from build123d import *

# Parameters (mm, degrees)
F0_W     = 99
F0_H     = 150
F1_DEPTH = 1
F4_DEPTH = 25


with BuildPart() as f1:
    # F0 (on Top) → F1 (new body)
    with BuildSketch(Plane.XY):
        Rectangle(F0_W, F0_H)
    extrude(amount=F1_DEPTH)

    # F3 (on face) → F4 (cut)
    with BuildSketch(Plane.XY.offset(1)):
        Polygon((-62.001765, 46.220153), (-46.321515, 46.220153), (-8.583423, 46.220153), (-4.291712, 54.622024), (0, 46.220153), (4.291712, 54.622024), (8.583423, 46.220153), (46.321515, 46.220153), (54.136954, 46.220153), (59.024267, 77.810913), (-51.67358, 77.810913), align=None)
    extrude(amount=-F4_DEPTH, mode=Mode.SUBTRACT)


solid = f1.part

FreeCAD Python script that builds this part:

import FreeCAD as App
import Part
import Sketcher


def add_polygon(sketch, points):
    """Adds a closed chain of lines whose ends are joined by coincident constraints."""
    first, n = sketch.GeometryCount, len(points)
    for a, b in zip(points, points[1:] + points[:1]):
        sketch.addGeometry(Part.LineSegment(App.Vector(*a, 0), App.Vector(*b, 0)), False)
    for i in range(n):
        sketch.addConstraint(Sketcher.Constraint("Coincident", first + i, 2, first + (i + 1) % n, 1))

doc = App.newDocument("Part")
body = doc.addObject("PartDesign::Body", "Body")

# Sketch on XY plane
sketch1 = body.newObject("Sketcher::SketchObject", "Sketch")
sketch1.AttachmentSupport = (doc.getObject("XY_Plane"), [""])
sketch1.MapMode = "FlatFace"
add_polygon(sketch1, [(-49.5, 75), (-49.5, -75), (49.5, -75), (49.5, 75)])  # lines 0-3
sketch1.addConstraint(Sketcher.Constraint("Vertical", 0))
sketch1.addConstraint(Sketcher.Constraint("Horizontal", 1))
sketch1.addConstraint(Sketcher.Constraint("Vertical", 2))
sketch1.addConstraint(Sketcher.Constraint("Horizontal", 3))
sketch1.addConstraint(Sketcher.Constraint("Symmetric", 0, 2, 2, 2, -1, 1))
sketch1.addConstraint(Sketcher.Constraint("DistanceX", 1, 1, 1, 2, 99.0))
sketch1.addConstraint(Sketcher.Constraint("DistanceY", 0, 2, 0, 1, 150.0))
pad1 = body.newObject("PartDesign::Pad", "Pad")
pad1.Profile = sketch1
pad1.Length = 1

# Sketch on XY plane
sketch2 = body.newObject("Sketcher::SketchObject", "Sketch001")
sketch2.AttachmentSupport = (doc.getObject("XY_Plane"), [""])
sketch2.MapMode = "FlatFace"
sketch2.AttachmentOffset = App.Placement(App.Vector(0, 0, 1), App.Rotation())
add_polygon(sketch2, [(-62.001765, 46.220153), (-8.583423, 46.220153), (-4.291712, 54.622024), (0, 46.220153), (4.291712, 54.622024), (8.583423, 46.220153), (54.136954, 46.220153), (59.024267, 77.810913), (-51.67358, 77.810913)])  # lines 0-8
sketch2.addConstraint(Sketcher.Constraint("Horizontal", 0))
sketch2.addConstraint(Sketcher.Constraint("Horizontal", 5))
sketch2.addConstraint(Sketcher.Constraint("Horizontal", 7))
sketch2.addConstraint(Sketcher.Constraint("Symmetric", 1, 2, 3, 2, -2))
sketch2.addConstraint(Sketcher.Constraint("Symmetric", 0, 2, 4, 2, -2))
sketch2.addConstraint(Sketcher.Constraint("PointOnObject", 2, 2, -2))
sketch2.addConstraint(Sketcher.Constraint("Parallel", 1, 3))
sketch2.addConstraint(Sketcher.Constraint("Horizontal", 0, 2, 2, 2))
sketch2.addConstraint(Sketcher.Constraint("DistanceX", 0, 1, 0, 2, 53.418342))
sketch2.addConstraint(Sketcher.Constraint("DistanceX", 5, 1, 5, 2, 45.553531))
sketch2.addConstraint(Sketcher.Constraint("Distance", 8, 33.236238))
sketch2.addConstraint(Sketcher.Constraint("DistanceX", 7, 2, 7, 1, 110.697847))
sketch2.addConstraint(Sketcher.Constraint("DistanceX", 7, 2, -1, 1, 51.67358))
sketch2.addConstraint(Sketcher.Constraint("DistanceX", 0, 2, 1, 2, 4.291711))
sketch2.addConstraint(Sketcher.Constraint("DistanceY", 0, 2, 1, 2, 8.401871))
sketch2.addConstraint(Sketcher.Constraint("DistanceY", -1, 1, 0, 2, 46.220153))
pocket1 = body.newObject("PartDesign::Pocket", "Pocket")
pocket1.Profile = sketch2
pocket1.Length = 25

doc.recompute()
